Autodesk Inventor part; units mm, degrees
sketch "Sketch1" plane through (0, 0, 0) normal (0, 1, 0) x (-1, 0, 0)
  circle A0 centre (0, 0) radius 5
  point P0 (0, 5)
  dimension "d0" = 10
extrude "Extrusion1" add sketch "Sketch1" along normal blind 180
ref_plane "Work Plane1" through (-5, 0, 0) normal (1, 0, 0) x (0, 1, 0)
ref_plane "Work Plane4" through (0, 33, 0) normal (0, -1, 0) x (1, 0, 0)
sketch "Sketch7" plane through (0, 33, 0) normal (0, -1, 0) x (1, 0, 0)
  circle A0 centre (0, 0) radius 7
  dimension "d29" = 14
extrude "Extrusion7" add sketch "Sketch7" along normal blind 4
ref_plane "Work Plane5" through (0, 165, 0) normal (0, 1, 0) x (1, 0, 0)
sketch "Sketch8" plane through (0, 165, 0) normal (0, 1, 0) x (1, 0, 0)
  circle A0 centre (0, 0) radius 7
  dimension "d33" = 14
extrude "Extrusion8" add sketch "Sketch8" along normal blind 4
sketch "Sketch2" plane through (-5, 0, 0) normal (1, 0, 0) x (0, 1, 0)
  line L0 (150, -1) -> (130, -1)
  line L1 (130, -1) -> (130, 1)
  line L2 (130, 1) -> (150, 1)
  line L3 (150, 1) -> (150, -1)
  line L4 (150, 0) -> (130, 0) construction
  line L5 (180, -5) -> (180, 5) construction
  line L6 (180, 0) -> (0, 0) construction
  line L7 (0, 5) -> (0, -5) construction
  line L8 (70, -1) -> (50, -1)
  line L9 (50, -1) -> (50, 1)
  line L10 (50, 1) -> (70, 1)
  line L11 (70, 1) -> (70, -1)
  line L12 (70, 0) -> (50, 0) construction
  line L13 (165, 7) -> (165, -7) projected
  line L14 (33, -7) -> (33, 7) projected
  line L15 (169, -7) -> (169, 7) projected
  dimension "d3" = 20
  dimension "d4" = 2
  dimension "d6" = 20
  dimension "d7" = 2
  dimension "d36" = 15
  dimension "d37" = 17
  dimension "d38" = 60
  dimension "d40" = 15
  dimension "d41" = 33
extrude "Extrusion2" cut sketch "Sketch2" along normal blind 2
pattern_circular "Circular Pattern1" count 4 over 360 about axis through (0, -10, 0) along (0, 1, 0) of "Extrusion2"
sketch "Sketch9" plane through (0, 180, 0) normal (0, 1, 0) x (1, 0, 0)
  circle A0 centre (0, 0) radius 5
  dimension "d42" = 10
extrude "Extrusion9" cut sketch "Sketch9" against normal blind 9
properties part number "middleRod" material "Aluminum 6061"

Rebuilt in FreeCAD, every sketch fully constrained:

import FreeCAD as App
import Part
import Sketcher
Q = App.Units.Quantity


def add_polygon(sketch, points):
    """Adds a closed chain of lines whose ends are joined by coincident constraints."""
    first, n = sketch.GeometryCount, len(points)
    for a, b in zip(points, points[1:] + points[:1]):
        sketch.addGeometry(Part.LineSegment(App.Vector(*a, 0), App.Vector(*b, 0)), False)
    for i in range(n):
        sketch.addConstraint(Sketcher.Constraint("Coincident", first + i, 2, first + (i + 1) % n, 1))

doc = App.newDocument("Part")
params = doc.addObject("Spreadsheet::Sheet", "Params")
for row, (alias, value) in enumerate([
    ("sketch1_diameter", "10 mm"),
    ("pad1_length", "180 mm"),
    ("sketch2_diameter", "14 mm"),
    ("pad2_length", "4 mm"),
    ("sketch3_diameter", "14 mm"),
    ("pad3_length", "4 mm"),
    ("sketch4_width", "20 mm"),
    ("sketch4_height", "2 mm"),
    ("pocket1_length", "2 mm"),
    ("sketch5_diameter", "10 mm"),
    ("pocket2_length", "9 mm"),
], start=1):
    params.set(f"A{row}", alias)
    params.set(f"B{row}", "=" + value)
    params.setAlias(f"B{row}", alias)

body = doc.addObject("PartDesign::Body", "Body")

# Sketch on XZ plane
sketch1 = body.newObject("Sketcher::SketchObject", "Sketch")
sketch1.AttachmentSupport = (doc.getObject("XZ_Plane"), [""])
sketch1.MapMode = "FlatFace"
sketch1.addGeometry(Part.Circle(App.Vector(0, 0, 0), App.Vector(0, 0, 1), 5), False)
sketch1.addConstraint(Sketcher.Constraint("Coincident", 0, 3, -1, 1))
sketch1.addConstraint(Sketcher.Constraint("Diameter", 0, Q("10 mm")))
sketch1.setExpression("Constraints[1]", "Params.sketch1_diameter")
pad1 = body.newObject("PartDesign::Pad", "Pad")
pad1.Profile = sketch1
pad1.setExpression("Length", "Params.pad1_length")
pad1.Reversed = True

# Sketch on XZ plane
sketch2 = body.newObject("Sketcher::SketchObject", "Sketch001")
sketch2.AttachmentSupport = (doc.getObject("XZ_Plane"), [""])
sketch2.MapMode = "FlatFace"
sketch2.AttachmentOffset = App.Placement(App.Vector(0, 0, -33), App.Rotation())
sketch2.addGeometry(Part.Circle(App.Vector(0, 0, 0), App.Vector(0, 0, 1), 7), False)
sketch2.addConstraint(Sketcher.Constraint("Coincident", 0, 3, -1, 1))
sketch2.addConstraint(Sketcher.Constraint("Diameter", 0, Q("14 mm")))
sketch2.setExpression("Constraints[1]", "Params.sketch2_diameter")
pad2 = body.newObject("PartDesign::Pad", "Pad001")
pad2.Profile = sketch2
pad2.setExpression("Length", "Params.pad2_length")

# Sketch on XZ plane
sketch3 = body.newObject("Sketcher::SketchObject", "Sketch002")
sketch3.AttachmentSupport = (doc.getObject("XZ_Plane"), [""])
sketch3.MapMode = "FlatFace"
sketch3.AttachmentOffset = App.Placement(App.Vector(0, 0, -165), App.Rotation())
sketch3.addGeometry(Part.Circle(App.Vector(0, 0, 0), App.Vector(0, 0, 1), 7), False)
sketch3.addConstraint(Sketcher.Constraint("Coincident", 0, 3, -1, 1))
sketch3.addConstraint(Sketcher.Constraint("Diameter", 0, Q("14 mm")))
sketch3.setExpression("Constraints[1]", "Params.sketch3_diameter")
pad3 = body.newObject("PartDesign::Pad", "Pad002")
pad3.Profile = sketch3
pad3.setExpression("Length", "Params.pad3_length")
pad3.Reversed = True

# Sketch on YZ plane
sketch4 = body.newObject("Sketcher::SketchObject", "Sketch003")
sketch4.AttachmentSupport = (doc.getObject("YZ_Plane"), [""])
sketch4.MapMode = "FlatFace"
sketch4.AttachmentOffset = App.Placement(App.Vector(0, 0, -5), App.Rotation())
add_polygon(sketch4, [(130, -1), (150, -1), (150, 1), (130, 1)])  # lines 0-3
add_polygon(sketch4, [(50, -1), (70, -1), (70, 1), (50, 1)])  # lines 4-7
sketch4.addConstraint(Sketcher.Constraint("Horizontal", 0))
sketch4.addConstraint(Sketcher.Constraint("Vertical", 1))
sketch4.addConstraint(Sketcher.Constraint("Horizontal", 2))
sketch4.addConstraint(Sketcher.Constraint("Vertical", 3))
sketch4.addConstraint(Sketcher.Constraint("Horizontal", 4))
sketch4.addConstraint(Sketcher.Constraint("Vertical", 5))
sketch4.addConstraint(Sketcher.Constraint("Horizontal", 6))
sketch4.addConstraint(Sketcher.Constraint("Vertical", 7))
sketch4.addConstraint(Sketcher.Constraint("Horizontal", 3, 2, 4, 2))
sketch4.addConstraint(Sketcher.Constraint("Horizontal", 2, 2, 5, 2))
sketch4.addConstraint(Sketcher.Constraint("Equal", 2, 4))
sketch4.addConstraint(Sketcher.Constraint("DistanceX", 0, 1, 0, 2, Q("20 mm")))
sketch4.addConstraint(Sketcher.Constraint("DistanceY", 1, 1, 1, 2, Q("2 mm")))
sketch4.addConstraint(Sketcher.Constraint("DistanceX", 4, 2, 3, 2, Q("60 mm")))
sketch4.addConstraint(Sketcher.Constraint("DistanceX", -1, 1, 0, 2, Q("150 mm")))
sketch4.addConstraint(Sketcher.Constraint("DistanceY", 0, 2, -1, 1, Q("1 mm")))
sketch4.setExpression("Constraints[19]", "Params.sketch4_width")
sketch4.setExpression("Constraints[20]", "Params.sketch4_height")
pocket1 = body.newObject("PartDesign::Pocket", "Pocket")
pocket1.Profile = sketch4
pocket1.setExpression("Length", "Params.pocket1_length")
pocket1.Reversed = True
doc.recompute()

polarpattern = body.newObject("PartDesign::PolarPattern", "PolarPattern")
polarpattern.Originals = [pocket1]
polarpattern.Axis = (doc.getObject("Y_Axis"), [""])
polarpattern.Angle = 360
polarpattern.Occurrences = 4
body.Tip = polarpattern

# Sketch on XZ plane
sketch5 = body.newObject("Sketcher::SketchObject", "Sketch004")
sketch5.AttachmentSupport = (doc.getObject("XZ_Plane"), [""])
sketch5.MapMode = "FlatFace"
sketch5.AttachmentOffset = App.Placement(App.Vector(0, 0, -180), App.Rotation())
sketch5.addGeometry(Part.Circle(App.Vector(0, 0, 0), App.Vector(0, 0, 1), 5), False)
sketch5.addConstraint(Sketcher.Constraint("Coincident", 0, 3, -1, 1))
sketch5.addConstraint(Sketcher.Constraint("Diameter", 0, Q("10 mm")))
sketch5.setExpression("Constraints[1]", "Params.sketch5_diameter")
pocket2 = body.newObject("PartDesign::Pocket", "Pocket001")
pocket2.Profile = sketch5
pocket2.setExpression("Length", "Params.pocket2_length")
pocket2.Reversed = True

doc.recompute()
